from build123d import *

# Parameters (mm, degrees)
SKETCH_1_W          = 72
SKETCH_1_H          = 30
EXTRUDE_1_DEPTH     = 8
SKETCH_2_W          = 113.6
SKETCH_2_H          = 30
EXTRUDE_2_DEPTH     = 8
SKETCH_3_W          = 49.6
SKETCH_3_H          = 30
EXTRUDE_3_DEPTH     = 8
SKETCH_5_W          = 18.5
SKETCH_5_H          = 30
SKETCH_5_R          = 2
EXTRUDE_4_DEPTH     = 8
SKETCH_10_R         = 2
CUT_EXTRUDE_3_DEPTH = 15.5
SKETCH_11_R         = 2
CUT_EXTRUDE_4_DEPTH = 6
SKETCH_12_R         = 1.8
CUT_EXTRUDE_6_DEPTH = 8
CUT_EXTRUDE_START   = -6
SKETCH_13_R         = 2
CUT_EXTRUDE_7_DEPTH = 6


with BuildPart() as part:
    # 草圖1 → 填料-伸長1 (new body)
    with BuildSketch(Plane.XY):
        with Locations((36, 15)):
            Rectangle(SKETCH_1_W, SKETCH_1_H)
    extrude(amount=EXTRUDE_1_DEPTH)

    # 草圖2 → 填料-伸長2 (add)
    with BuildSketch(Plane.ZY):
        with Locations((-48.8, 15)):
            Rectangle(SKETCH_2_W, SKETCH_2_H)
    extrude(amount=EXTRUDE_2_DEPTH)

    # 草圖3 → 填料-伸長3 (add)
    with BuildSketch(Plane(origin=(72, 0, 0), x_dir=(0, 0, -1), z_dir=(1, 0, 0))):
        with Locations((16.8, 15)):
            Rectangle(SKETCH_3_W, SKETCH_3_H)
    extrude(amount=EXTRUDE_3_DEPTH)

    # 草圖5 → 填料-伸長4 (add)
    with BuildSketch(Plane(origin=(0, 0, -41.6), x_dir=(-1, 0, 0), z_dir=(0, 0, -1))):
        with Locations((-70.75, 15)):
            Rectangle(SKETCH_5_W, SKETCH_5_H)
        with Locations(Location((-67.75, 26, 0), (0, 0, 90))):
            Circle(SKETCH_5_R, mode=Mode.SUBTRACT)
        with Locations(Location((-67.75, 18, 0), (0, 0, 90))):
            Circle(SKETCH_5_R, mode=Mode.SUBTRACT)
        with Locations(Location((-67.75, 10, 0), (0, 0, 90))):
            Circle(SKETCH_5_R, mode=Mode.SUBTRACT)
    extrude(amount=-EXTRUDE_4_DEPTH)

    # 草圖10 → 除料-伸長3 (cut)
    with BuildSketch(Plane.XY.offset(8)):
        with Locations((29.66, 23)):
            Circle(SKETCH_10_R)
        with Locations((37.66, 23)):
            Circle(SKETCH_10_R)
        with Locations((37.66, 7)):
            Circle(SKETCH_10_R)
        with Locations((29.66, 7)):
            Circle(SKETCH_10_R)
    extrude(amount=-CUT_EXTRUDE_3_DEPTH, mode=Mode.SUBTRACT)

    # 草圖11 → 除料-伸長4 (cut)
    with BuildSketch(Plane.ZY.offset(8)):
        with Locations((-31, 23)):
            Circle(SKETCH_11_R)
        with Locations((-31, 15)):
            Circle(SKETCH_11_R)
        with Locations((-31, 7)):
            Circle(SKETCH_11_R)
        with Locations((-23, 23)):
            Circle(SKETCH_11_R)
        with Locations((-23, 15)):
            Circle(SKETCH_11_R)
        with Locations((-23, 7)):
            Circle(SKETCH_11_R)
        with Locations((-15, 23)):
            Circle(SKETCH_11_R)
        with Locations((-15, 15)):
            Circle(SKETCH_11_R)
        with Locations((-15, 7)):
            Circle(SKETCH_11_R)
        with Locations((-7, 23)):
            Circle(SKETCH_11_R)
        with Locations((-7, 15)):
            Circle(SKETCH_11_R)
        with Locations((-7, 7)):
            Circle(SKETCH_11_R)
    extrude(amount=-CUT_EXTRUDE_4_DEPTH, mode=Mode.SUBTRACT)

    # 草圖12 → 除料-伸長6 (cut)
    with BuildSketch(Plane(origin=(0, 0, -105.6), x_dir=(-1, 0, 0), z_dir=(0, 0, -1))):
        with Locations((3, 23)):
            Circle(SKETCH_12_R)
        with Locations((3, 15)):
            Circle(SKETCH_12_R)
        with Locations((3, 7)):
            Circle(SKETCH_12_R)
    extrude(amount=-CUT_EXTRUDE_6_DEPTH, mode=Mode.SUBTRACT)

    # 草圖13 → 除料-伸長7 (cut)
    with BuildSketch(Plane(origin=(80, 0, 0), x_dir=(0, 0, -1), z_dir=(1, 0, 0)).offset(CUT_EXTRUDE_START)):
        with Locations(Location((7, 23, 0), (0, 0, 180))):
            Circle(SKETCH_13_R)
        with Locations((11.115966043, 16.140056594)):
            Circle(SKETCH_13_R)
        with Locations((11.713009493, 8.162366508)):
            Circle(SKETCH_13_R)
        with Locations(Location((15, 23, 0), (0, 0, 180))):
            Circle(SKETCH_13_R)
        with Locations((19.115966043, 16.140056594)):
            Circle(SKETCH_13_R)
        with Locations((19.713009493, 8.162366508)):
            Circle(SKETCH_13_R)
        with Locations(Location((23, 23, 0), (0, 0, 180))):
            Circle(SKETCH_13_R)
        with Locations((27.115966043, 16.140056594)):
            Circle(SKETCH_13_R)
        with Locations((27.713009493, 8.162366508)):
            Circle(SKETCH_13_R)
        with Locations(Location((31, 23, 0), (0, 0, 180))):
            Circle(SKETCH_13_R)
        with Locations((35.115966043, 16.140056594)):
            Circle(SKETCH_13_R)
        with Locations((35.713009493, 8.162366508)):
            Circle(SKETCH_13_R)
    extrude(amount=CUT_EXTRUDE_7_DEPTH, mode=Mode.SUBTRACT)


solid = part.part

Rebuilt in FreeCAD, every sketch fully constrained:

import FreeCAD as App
import Part
import Sketcher

V = App.Vector


def add_polygon(sketch, points):
    """Adds a closed chain of lines whose ends are joined by coincident constraints."""
    first, n = sketch.GeometryCount, len(points)
    for a, b in zip(points, points[1:] + points[:1]):
        sketch.addGeometry(Part.LineSegment(App.Vector(*a, 0), App.Vector(*b, 0)), False)
    for i in range(n):
        sketch.addConstraint(Sketcher.Constraint("Coincident", first + i, 2, first + (i + 1) % n, 1))

doc = App.newDocument("Part")
body = doc.addObject("PartDesign::Body", "Body")

sketch1 = body.newObject("Sketcher::SketchObject", "Sketch")
sketch1.AttachmentSupport = (doc.getObject("XY_Plane"), [""])
sketch1.MapMode = "FlatFace"
add_polygon(sketch1, [(0, 30), (0, 0), (72, 0), (72, 30)])
sketch1.addConstraint([
    Sketcher.Constraint("Vertical", 0),
    Sketcher.Constraint("Horizontal", 1),
    Sketcher.Constraint("Vertical", 2),
    Sketcher.Constraint("Horizontal", 3),
    Sketcher.Constraint("Coincident", 0, 2, -1, 1),
    Sketcher.Constraint("DistanceX", 1, 1, 1, 2, 72.0),
    Sketcher.Constraint("DistanceY", 0, 2, 0, 1, 30.0),
])
pad1 = body.newObject("PartDesign::Pad", "Pad")
pad1.Profile = sketch1
pad1.Length = 8

sketch2 = body.newObject("Sketcher::SketchObject", "Sketch001")
sketch2.AttachmentSupport = (doc.getObject("YZ_Plane"), [""])
sketch2.MapMode = "FlatFace"
add_polygon(sketch2, [(30, -106), (0, -106), (0, 8), (30, 8)])
sketch2.addConstraint([
    Sketcher.Constraint("Horizontal", 0),
    Sketcher.Constraint("Vertical", 1),
    Sketcher.Constraint("Horizontal", 2),
    Sketcher.Constraint("Vertical", 3),
    Sketcher.Constraint("PointOnObject", 0, 2, -2),
    Sketcher.Constraint("DistanceX", 0, 2, 0, 1, 30.0),
    Sketcher.Constraint("DistanceY", 1, 1, 1, 2, 113.6),
    Sketcher.Constraint("DistanceY", -1, 1, 1, 2, 8.0),
])
pad2 = body.newObject("PartDesign::Pad", "Pad001")
pad2.Profile = sketch2
pad2.Length = 8
pad2.Reversed = True

sketch3 = body.newObject("Sketcher::SketchObject", "Sketch002")
sketch3.AttachmentSupport = (doc.getObject("YZ_Plane"), [""])
sketch3.MapMode = "FlatFace"
sketch3.AttachmentOffset = App.Placement(V(0, 0, 72), App.Rotation())
add_polygon(sketch3, [(30, 8), (0, 8), (0, -42), (30, -42)])
sketch3.addConstraint([
    Sketcher.Constraint("Horizontal", 0),
    Sketcher.Constraint("Vertical", 1),
    Sketcher.Constraint("Horizontal", 2),
    Sketcher.Constraint("Vertical", 3),
    Sketcher.Constraint("PointOnObject", 0, 2, -2),
    Sketcher.Constraint("DistanceX", 0, 2, 0, 1, 30.0),
    Sketcher.Constraint("DistanceY", 1, 2, 1, 1, 49.6),
    Sketcher.Constraint("DistanceY", -1, 1, 0, 2, 8.0),
])
pad3 = body.newObject("PartDesign::Pad", "Pad002")
pad3.Profile = sketch3
pad3.Length = 8

sketch4 = body.newObject("Sketcher::SketchObject", "Sketch003")
sketch4.AttachmentSupport = (doc.getObject("XY_Plane"), [""])
sketch4.MapMode = "FlatFace"
sketch4.AttachmentOffset = App.Placement(V(0, 0, -41.6), App.Rotation())
add_polygon(sketch4, [(80, 30), (80, 0), (61.5, 0), (61.5, 30)])
sketch4.addGeometry(Part.Circle(V(67.8, 10, 0), V(0, 0, 1), 2), False)
sketch4.addGeometry(Part.Circle(V(67.8, 18, 0), V(0, 0, 1), 2), False)
sketch4.addGeometry(Part.Circle(V(67.8, 26, 0), V(0, 0, 1), 2), False)
sketch4.addConstraint([
    Sketcher.Constraint("Vertical", 0),
    Sketcher.Constraint("Horizontal", 1),
    Sketcher.Constraint("Vertical", 2),
    Sketcher.Constraint("Horizontal", 3),
    Sketcher.Constraint("Equal", 4, 5),
    Sketcher.Constraint("Equal", 5, 6),
    Sketcher.Constraint("PointOnObject", 0, 2, -1),
    Sketcher.Constraint("Vertical", 4, 3, 5, 3),
    Sketcher.Constraint("Vertical", 5, 3, 6, 3),
    Sketcher.Constraint("Diameter", 4, 4.0),
    Sketcher.Constraint("DistanceY", 0, 2, 0, 1, 30.0),
    Sketcher.Constraint("DistanceX", 1, 2, 1, 1, 18.5),
    Sketcher.Constraint("DistanceY", -1, 1, 4, 3, 10.0),
    Sketcher.Constraint("DistanceY", -1, 1, 5, 3, 18.0),
    Sketcher.Constraint("DistanceY", -1, 1, 6, 3, 26.0),
    Sketcher.Constraint("DistanceX", -1, 1, 0, 2, 80.0),
    Sketcher.Constraint("DistanceX", -1, 1, 4, 3, 67.75),
])
pad4 = body.newObject("PartDesign::Pad", "Pad003")
pad4.Profile = sketch4
pad4.Length = 8

sketch5 = body.newObject("Sketcher::SketchObject", "Sketch004")
sketch5.AttachmentSupport = (doc.getObject("XY_Plane"), [""])
sketch5.MapMode = "FlatFace"
sketch5.AttachmentOffset = App.Placement(V(0, 0, 8), App.Rotation())
sketch5.addGeometry([
    Part.Circle(V(29.7, 23, 0), V(0, 0, 1), 2),
    Part.Circle(V(37.7, 23, 0), V(0, 0, 1), 2),
    Part.Circle(V(37.7, 7, 0), V(0, 0, 1), 2),
    Part.Circle(V(29.7, 7, 0), V(0, 0, 1), 2),
], False)
sketch5.addConstraint([
    Sketcher.Constraint("Equal", 0, 1),
    Sketcher.Constraint("Equal", 1, 2),
    Sketcher.Constraint("Equal", 2, 3),
    Sketcher.Constraint("Horizontal", 0, 3, 1, 3),
    Sketcher.Constraint("Horizontal", 2, 3, 3, 3),
    Sketcher.Constraint("Vertical", 1, 3, 2, 3),
    Sketcher.Constraint("Vertical", 0, 3, 3, 3),
    Sketcher.Constraint("Diameter", 0, 4.0),
    Sketcher.Constraint("DistanceY", -1, 1, 0, 3, 23.0),
    Sketcher.Constraint("DistanceY", -1, 1, 2, 3, 7.0),
    Sketcher.Constraint("DistanceX", 0, 3, 1, 3, 8.0),
    Sketcher.Constraint("DistanceX", -1, 1, 0, 3, 29.66),
])
pocket1 = body.newObject("PartDesign::Pocket", "Pocket")
pocket1.Profile = sketch5
pocket1.Length = 15.5

sketch6 = body.newObject("Sketcher::SketchObject", "Sketch005")
sketch6.AttachmentSupport = (doc.getObject("YZ_Plane"), [""])
sketch6.MapMode = "FlatFace"
sketch6.AttachmentOffset = App.Placement(V(0, 0, -8), App.Rotation())
sketch6.addGeometry([
    Part.Circle(V(23, -31, 0), V(0, 0, 1), 2),
    Part.Circle(V(15, -31, 0), V(0, 0, 1), 2),
    Part.Circle(V(7, -31, 0), V(0, 0, 1), 2),
    Part.Circle(V(23, -23, 0), V(0, 0, 1), 2),
    Part.Circle(V(15, -23, 0), V(0, 0, 1), 2),
    Part.Circle(V(7, -23, 0), V(0, 0, 1), 2),
    Part.Circle(V(23, -15, 0), V(0, 0, 1), 2),
    Part.Circle(V(15, -15, 0), V(0, 0, 1), 2),
    Part.Circle(V(7, -15, 0), V(0, 0, 1), 2),
    Part.Circle(V(23, -7, 0), V(0, 0, 1), 2),
    Part.Circle(V(15, -7, 0), V(0, 0, 1), 2),
    Part.Circle(V(7, -7, 0), V(0, 0, 1), 2),
], False)
sketch6.addConstraint([
    Sketcher.Constraint("Equal", 0, 1),
    Sketcher.Constraint("Equal", 1, 2),
    Sketcher.Constraint("Equal", 2, 3),
    Sketcher.Constraint("Equal", 3, 4),
    Sketcher.Constraint("Equal", 4, 5),
    Sketcher.Constraint("Equal", 5, 6),
    Sketcher.Constraint("Equal", 6, 7),
    Sketcher.Constraint("Equal", 7, 8),
    Sketcher.Constraint("Equal", 8, 9),
    Sketcher.Constraint("Equal", 9, 10),
    Sketcher.Constraint("Equal", 10, 11),
    Sketcher.Constraint("Horizontal", 0, 3, 1, 3),
    Sketcher.Constraint("Horizontal", 1, 3, 2, 3),
    Sketcher.Constraint("Horizontal", 3, 3, 4, 3),
    Sketcher.Constraint("Horizontal", 4, 3, 5, 3),
    Sketcher.Constraint("Horizontal", 6, 3, 7, 3),
    Sketcher.Constraint("Horizontal", 7, 3, 8, 3),
    Sketcher.Constraint("Horizontal", 9, 3, 10, 3),
    Sketcher.Constraint("Horizontal", 10, 3, 11, 3),
    Sketcher.Constraint("Vertical", 0, 3, 3, 3),
    Sketcher.Constraint("Vertical", 1, 3, 4, 3),
    Sketcher.Constraint("Vertical", 2, 3, 5, 3),
    Sketcher.Constraint("Vertical", 3, 3, 6, 3),
    Sketcher.Constraint("Vertical", 4, 3, 7, 3),
    Sketcher.Constraint("Vertical", 5, 3, 8, 3),
    Sketcher.Constraint("Vertical", 6, 3, 9, 3),
    Sketcher.Constraint("Vertical", 7, 3, 10, 3),
    Sketcher.Constraint("Vertical", 8, 3, 11, 3),
    Sketcher.Constraint("Diameter", 0, 4.0),
    Sketcher.Constraint("DistanceX", -1, 1, 0, 3, 23.0),
    Sketcher.Constraint("DistanceY", 0, 3, -1, 1, 31.0),
    Sketcher.Constraint("DistanceX", -1, 1, 1, 3, 15.0),
    Sketcher.Constraint("DistanceX", -1, 1, 2, 3, 7.0),
    Sketcher.Constraint("DistanceY", 3, 3, -1, 1, 23.0),
    Sketcher.Constraint("DistanceY", 6, 3, -1, 1, 15.0),
    Sketcher.Constraint("DistanceY", 9, 3, -1, 1, 7.0),
])
pocket2 = body.newObject("PartDesign::Pocket", "Pocket001")
pocket2.Profile = sketch6
pocket2.Length = 6
pocket2.Reversed = True

sketch7 = body.newObject("Sketcher::SketchObject", "Sketch006")
sketch7.AttachmentSupport = (doc.getObject("XY_Plane"), [""])
sketch7.MapMode = "FlatFace"
sketch7.AttachmentOffset = App.Placement(V(0, 0, -105.6), App.Rotation())
sketch7.addGeometry([
    Part.Circle(V(-3, 23, 0), V(0, 0, 1), 1.8),
    Part.Circle(V(-3, 15, 0), V(0, 0, 1), 1.8),
    Part.Circle(V(-3, 7, 0), V(0, 0, 1), 1.8),
], False)
sketch7.addConstraint([
    Sketcher.Constraint("Equal", 0, 1),
    Sketcher.Constraint("Equal", 1, 2),
    Sketcher.Constraint("Vertical", 0, 3, 1, 3),
    Sketcher.Constraint("Vertical", 1, 3, 2, 3),
    Sketcher.Constraint("Diameter", 0, 3.6),
    Sketcher.Constraint("DistanceX", 0, 3, -1, 1, 3.0),
    Sketcher.Constraint("DistanceY", -1, 1, 0, 3, 23.0),
    Sketcher.Constraint("DistanceY", -1, 1, 1, 3, 15.0),
    Sketcher.Constraint("DistanceY", -1, 1, 2, 3, 7.0),
])
pocket3 = body.newObject("PartDesign::Pocket", "Pocket002")
pocket3.Profile = sketch7
pocket3.Length = 8
pocket3.Reversed = True

sketch8 = body.newObject("Sketcher::SketchObject", "Sketch007")
sketch8.AttachmentSupport = (doc.getObject("YZ_Plane"), [""])
sketch8.MapMode = "FlatFace"
sketch8.AttachmentOffset = App.Placement(V(0, 0, 74), App.Rotation())
sketch8.addGeometry([
    Part.Circle(V(23, -7, 0), V(0, 0, 1), 2),
    Part.Circle(V(16.1, -11.1, 0), V(0, 0, 1), 2),
    Part.Circle(V(8.2, -11.7, 0), V(0, 0, 1), 2),
    Part.Circle(V(23, -15, 0), V(0, 0, 1), 2),
    Part.Circle(V(16.1, -19.1, 0), V(0, 0, 1), 2),
    Part.Circle(V(8.2, -19.7, 0), V(0, 0, 1), 2),
    Part.Circle(V(23, -23, 0), V(0, 0, 1), 2),
    Part.Circle(V(16.1, -27.1, 0), V(0, 0, 1), 2),
    Part.Circle(V(8.2, -27.7, 0), V(0, 0, 1), 2),
    Part.Circle(V(23, -31, 0), V(0, 0, 1), 2),
    Part.Circle(V(16.1, -35.1, 0), V(0, 0, 1), 2),
    Part.Circle(V(8.2, -35.7, 0), V(0, 0, 1), 2),
], False)
sketch8.addConstraint([
    Sketcher.Constraint("Equal", 0, 1),
    Sketcher.Constraint("Equal", 1, 2),
    Sketcher.Constraint("Equal", 2, 3),
    Sketcher.Constraint("Equal", 3, 4),
    Sketcher.Constraint("Equal", 4, 5),
    Sketcher.Constraint("Equal", 5, 6),
    Sketcher.Constraint("Equal", 6, 7),
    Sketcher.Constraint("Equal", 7, 8),
    Sketcher.Constraint("Equal", 8, 9),
    Sketcher.Constraint("Equal", 9, 10),
    Sketcher.Constraint("Equal", 10, 11),
    Sketcher.Constraint("Vertical", 0, 3, 3, 3),
    Sketcher.Constraint("Vertical", 1, 3, 4, 3),
    Sketcher.Constraint("Vertical", 2, 3, 5, 3),
    Sketcher.Constraint("Vertical", 3, 3, 6, 3),
    Sketcher.Constraint("Vertical", 4, 3, 7, 3),
    Sketcher.Constraint("Vertical", 5, 3, 8, 3),
    Sketcher.Constraint("Vertical", 6, 3, 9, 3),
    Sketcher.Constraint("Vertical", 7, 3, 10, 3),
    Sketcher.Constraint("Vertical", 8, 3, 11, 3),
    Sketcher.Constraint("Diameter", 0, 4.0),
    Sketcher.Constraint("DistanceX", -1, 1, 0, 3, 23.0),
    Sketcher.Constraint("DistanceY", 0, 3, -1, 1, 7.0),
    Sketcher.Constraint("DistanceY", 3, 3, -1, 1, 15.0),
    Sketcher.Constraint("DistanceY", 6, 3, -1, 1, 23.0),
    Sketcher.Constraint("DistanceY", 9, 3, -1, 1, 31.0),
    Sketcher.Constraint("DistanceY", 4, 3, 1, 3, 8.0),
    Sketcher.Constraint("DistanceY", 5, 3, 2, 3, 8.0),
    Sketcher.Constraint("DistanceY", 7, 3, 4, 3, 8.0),
    Sketcher.Constraint("DistanceY", 8, 3, 5, 3, 8.0),
    Sketcher.Constraint("DistanceY", 10, 3, 7, 3, 8.0),
    Sketcher.Constraint("DistanceY", 11, 3, 8, 3, 8.0),
    Sketcher.Constraint("DistanceY", 2, 3, -1, 1, 11.713009),
    Sketcher.Constraint("DistanceX", 2, 3, 1, 3, 7.97769),
    Sketcher.Constraint("DistanceX", -1, 1, 1, 3, 16.140057),
    Sketcher.Constraint("DistanceY", 1, 3, -1, 1, 11.115966),
])
pocket4 = body.newObject("PartDesign::Pocket", "Pocket003")
pocket4.Profile = sketch8
pocket4.Length = 6
pocket4.Reversed = True

doc.recompute()
